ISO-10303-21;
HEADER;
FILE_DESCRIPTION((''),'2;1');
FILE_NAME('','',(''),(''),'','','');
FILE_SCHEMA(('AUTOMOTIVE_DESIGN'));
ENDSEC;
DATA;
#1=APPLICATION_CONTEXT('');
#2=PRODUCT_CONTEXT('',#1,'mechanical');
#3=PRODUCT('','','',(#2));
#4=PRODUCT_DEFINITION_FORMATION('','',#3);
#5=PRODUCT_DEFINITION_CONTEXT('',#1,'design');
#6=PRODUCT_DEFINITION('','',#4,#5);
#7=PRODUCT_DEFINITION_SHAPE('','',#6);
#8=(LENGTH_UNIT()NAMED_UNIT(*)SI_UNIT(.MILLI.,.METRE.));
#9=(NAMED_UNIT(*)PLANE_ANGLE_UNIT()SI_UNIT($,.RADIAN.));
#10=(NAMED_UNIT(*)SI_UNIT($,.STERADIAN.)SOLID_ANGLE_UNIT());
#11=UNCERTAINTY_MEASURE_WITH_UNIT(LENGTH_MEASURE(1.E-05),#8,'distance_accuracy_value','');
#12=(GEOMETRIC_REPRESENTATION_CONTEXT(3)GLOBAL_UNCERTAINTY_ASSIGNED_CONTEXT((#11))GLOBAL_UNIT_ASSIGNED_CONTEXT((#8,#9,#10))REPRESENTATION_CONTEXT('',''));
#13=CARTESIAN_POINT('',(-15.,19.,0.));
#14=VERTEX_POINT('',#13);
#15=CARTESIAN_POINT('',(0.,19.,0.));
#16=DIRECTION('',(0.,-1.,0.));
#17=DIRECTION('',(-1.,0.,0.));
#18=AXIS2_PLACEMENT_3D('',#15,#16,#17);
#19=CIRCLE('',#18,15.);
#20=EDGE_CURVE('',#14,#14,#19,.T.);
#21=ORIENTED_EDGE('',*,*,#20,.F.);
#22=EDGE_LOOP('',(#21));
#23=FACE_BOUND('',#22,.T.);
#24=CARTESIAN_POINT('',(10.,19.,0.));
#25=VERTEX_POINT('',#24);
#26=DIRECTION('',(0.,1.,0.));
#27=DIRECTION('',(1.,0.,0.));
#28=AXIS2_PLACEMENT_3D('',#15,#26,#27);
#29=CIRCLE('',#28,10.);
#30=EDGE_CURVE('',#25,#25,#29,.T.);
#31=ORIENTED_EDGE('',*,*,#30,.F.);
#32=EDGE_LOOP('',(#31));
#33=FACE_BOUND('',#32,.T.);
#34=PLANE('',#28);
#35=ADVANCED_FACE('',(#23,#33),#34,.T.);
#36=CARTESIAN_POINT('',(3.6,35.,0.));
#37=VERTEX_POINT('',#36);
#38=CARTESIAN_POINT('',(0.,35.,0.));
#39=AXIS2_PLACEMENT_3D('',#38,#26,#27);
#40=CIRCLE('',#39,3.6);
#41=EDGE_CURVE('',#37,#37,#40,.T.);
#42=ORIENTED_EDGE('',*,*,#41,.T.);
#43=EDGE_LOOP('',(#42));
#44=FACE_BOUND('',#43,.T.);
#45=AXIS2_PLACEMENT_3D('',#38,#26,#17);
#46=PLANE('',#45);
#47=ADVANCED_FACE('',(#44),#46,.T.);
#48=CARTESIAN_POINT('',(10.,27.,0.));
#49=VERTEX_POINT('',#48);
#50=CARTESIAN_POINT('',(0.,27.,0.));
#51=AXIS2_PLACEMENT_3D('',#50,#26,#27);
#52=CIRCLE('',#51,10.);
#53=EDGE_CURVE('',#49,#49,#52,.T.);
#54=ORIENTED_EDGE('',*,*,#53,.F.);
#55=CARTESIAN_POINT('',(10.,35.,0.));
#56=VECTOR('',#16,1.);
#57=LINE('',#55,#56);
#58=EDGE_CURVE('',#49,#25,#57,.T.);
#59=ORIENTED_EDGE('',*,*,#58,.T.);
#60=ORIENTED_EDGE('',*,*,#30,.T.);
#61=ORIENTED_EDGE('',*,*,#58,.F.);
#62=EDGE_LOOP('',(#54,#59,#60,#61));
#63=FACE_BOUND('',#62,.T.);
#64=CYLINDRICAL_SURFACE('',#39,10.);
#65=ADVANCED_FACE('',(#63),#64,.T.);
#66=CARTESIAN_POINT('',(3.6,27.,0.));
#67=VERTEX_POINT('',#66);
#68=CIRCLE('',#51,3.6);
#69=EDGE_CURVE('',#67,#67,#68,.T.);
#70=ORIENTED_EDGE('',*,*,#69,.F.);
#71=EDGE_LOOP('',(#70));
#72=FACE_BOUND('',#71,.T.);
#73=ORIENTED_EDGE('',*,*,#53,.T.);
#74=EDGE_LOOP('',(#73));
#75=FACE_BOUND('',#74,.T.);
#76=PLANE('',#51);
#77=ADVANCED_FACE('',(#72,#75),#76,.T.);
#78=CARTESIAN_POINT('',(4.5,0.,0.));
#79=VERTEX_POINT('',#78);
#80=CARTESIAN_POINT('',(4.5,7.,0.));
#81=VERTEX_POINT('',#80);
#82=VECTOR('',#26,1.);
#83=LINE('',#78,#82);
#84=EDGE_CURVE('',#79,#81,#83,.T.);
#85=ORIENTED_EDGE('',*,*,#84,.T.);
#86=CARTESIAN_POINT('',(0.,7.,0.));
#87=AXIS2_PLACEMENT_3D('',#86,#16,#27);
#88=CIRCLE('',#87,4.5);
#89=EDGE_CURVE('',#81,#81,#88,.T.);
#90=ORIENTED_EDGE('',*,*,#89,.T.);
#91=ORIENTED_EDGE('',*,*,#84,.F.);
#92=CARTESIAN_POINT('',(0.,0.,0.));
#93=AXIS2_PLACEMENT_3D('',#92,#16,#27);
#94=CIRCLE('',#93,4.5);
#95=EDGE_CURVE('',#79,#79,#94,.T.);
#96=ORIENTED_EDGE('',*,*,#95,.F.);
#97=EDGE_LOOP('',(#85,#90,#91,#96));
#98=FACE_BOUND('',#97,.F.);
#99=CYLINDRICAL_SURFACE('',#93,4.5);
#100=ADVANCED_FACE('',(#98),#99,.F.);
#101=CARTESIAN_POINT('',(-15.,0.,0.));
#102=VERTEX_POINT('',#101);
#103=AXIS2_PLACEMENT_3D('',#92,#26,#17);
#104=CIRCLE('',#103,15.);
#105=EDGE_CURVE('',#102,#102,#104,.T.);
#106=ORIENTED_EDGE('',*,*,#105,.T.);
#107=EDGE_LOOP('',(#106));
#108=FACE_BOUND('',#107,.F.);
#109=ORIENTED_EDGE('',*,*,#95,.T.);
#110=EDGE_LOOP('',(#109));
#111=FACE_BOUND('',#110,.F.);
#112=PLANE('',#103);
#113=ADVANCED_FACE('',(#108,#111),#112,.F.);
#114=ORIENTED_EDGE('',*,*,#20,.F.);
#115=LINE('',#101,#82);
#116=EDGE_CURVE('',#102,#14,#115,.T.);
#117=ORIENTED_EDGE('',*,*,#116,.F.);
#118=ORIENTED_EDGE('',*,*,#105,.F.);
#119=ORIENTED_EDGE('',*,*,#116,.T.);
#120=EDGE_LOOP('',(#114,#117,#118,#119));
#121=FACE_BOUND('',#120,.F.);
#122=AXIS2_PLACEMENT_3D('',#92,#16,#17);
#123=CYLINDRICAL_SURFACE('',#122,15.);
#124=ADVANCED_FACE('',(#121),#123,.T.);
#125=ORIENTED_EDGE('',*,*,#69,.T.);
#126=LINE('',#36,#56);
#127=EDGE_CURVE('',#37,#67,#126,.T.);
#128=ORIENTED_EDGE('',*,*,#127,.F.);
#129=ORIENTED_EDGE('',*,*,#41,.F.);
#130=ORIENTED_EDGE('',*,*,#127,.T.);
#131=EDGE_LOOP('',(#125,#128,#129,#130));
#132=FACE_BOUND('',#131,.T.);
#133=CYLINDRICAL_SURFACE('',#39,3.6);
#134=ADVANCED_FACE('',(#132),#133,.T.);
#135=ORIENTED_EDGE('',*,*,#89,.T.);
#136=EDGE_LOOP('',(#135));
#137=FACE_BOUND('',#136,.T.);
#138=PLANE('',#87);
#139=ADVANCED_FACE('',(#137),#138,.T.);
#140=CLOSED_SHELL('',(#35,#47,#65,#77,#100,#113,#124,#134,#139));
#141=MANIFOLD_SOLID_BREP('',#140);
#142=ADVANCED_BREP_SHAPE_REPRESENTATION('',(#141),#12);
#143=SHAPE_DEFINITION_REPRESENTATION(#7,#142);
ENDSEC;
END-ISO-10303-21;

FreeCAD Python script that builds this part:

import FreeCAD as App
import Part
import Sketcher
from FreeCAD import Vector
Q = App.Units.Quantity

doc = App.newDocument("Part")
body = doc.addObject("PartDesign::Body", "Body")

# Sketch on XZ plane
sketch1 = body.newObject("Sketcher::SketchObject", "Sketch")
sketch1.AttachmentSupport = (doc.getObject("XZ_Plane"), [""])
sketch1.MapMode = "FlatFace"
sketch1.addGeometry(Part.Circle(Vector(0, 0, 0), Vector(0, 0, 1), 15), False)
sketch1.addConstraint([
    Sketcher.Constraint("Coincident", 0, 3, -1, 1),
    Sketcher.Constraint("Diameter", 0, Q("30 mm")),
])
pad1 = body.newObject("PartDesign::Pad", "Pad")
pad1.Profile = sketch1
pad1.Length = 35
pad1.Reversed = True

# Sketch on XZ plane
sketch2 = body.newObject("Sketcher::SketchObject", "Sketch001")
sketch2.AttachmentSupport = (doc.getObject("XZ_Plane"), [""])
sketch2.MapMode = "FlatFace"
sketch2.AttachmentOffset = App.Placement(Vector(0, 0, -35), App.Rotation())
sketch2.addGeometry([
    Part.Circle(Vector(0, 0, 0), Vector(0, 0, 1), 15),
    Part.Circle(Vector(0, 0, 0), Vector(0, 0, 1), 10),
], False)
sketch2.addConstraint([
    Sketcher.Constraint("Coincident", 0, 3, -1, 1),
    Sketcher.Constraint("Coincident", 1, 3, -1, 1),
    Sketcher.Constraint("Diameter", 1, Q("20 mm")),
    Sketcher.Constraint("Diameter", 0, Q("30 mm")),
])
pocket1 = body.newObject("PartDesign::Pocket", "Pocket")
pocket1.Profile = sketch2
pocket1.Length = 16
pocket1.Reversed = True

# Sketch on XZ plane
sketch3 = body.newObject("Sketcher::SketchObject", "Sketch002")
sketch3.AttachmentSupport = (doc.getObject("XZ_Plane"), [""])
sketch3.MapMode = "FlatFace"
sketch3.AttachmentOffset = App.Placement(Vector(0, 0, -35), App.Rotation())
sketch3.addGeometry([
    Part.Circle(Vector(0, 0, 0), Vector(0, 0, 1), 10),
    Part.Circle(Vector(0, 0, 0), Vector(0, 0, 1), 3.6),
], False)
sketch3.addConstraint([
    Sketcher.Constraint("Coincident", 0, 3, -1, 1),
    Sketcher.Constraint("Coincident", 1, 3, -1, 1),
    Sketcher.Constraint("Diameter", 0, Q("20 mm")),
    Sketcher.Constraint("Diameter", 1, Q("7.2 mm")),
])
pocket2 = body.newObject("PartDesign::Pocket", "Pocket001")
pocket2.Profile = sketch3
pocket2.Length = 8
pocket2.Reversed = True

# Sketch on XZ plane
sketch4 = body.newObject("Sketcher::SketchObject", "Sketch003")
sketch4.AttachmentSupport = (doc.getObject("XZ_Plane"), [""])
sketch4.MapMode = "FlatFace"
sketch4.addGeometry(Part.Circle(Vector(0, 0, 0), Vector(0, 0, 1), 4.5), False)
sketch4.addConstraint([
    Sketcher.Constraint("Coincident", 0, 3, -1, 1),
    Sketcher.Constraint("Diameter", 0, Q("9 mm")),
])
pocket3 = body.newObject("PartDesign::Pocket", "Pocket002")
pocket3.Profile = sketch4
pocket3.Length = 7

doc.recompute()
